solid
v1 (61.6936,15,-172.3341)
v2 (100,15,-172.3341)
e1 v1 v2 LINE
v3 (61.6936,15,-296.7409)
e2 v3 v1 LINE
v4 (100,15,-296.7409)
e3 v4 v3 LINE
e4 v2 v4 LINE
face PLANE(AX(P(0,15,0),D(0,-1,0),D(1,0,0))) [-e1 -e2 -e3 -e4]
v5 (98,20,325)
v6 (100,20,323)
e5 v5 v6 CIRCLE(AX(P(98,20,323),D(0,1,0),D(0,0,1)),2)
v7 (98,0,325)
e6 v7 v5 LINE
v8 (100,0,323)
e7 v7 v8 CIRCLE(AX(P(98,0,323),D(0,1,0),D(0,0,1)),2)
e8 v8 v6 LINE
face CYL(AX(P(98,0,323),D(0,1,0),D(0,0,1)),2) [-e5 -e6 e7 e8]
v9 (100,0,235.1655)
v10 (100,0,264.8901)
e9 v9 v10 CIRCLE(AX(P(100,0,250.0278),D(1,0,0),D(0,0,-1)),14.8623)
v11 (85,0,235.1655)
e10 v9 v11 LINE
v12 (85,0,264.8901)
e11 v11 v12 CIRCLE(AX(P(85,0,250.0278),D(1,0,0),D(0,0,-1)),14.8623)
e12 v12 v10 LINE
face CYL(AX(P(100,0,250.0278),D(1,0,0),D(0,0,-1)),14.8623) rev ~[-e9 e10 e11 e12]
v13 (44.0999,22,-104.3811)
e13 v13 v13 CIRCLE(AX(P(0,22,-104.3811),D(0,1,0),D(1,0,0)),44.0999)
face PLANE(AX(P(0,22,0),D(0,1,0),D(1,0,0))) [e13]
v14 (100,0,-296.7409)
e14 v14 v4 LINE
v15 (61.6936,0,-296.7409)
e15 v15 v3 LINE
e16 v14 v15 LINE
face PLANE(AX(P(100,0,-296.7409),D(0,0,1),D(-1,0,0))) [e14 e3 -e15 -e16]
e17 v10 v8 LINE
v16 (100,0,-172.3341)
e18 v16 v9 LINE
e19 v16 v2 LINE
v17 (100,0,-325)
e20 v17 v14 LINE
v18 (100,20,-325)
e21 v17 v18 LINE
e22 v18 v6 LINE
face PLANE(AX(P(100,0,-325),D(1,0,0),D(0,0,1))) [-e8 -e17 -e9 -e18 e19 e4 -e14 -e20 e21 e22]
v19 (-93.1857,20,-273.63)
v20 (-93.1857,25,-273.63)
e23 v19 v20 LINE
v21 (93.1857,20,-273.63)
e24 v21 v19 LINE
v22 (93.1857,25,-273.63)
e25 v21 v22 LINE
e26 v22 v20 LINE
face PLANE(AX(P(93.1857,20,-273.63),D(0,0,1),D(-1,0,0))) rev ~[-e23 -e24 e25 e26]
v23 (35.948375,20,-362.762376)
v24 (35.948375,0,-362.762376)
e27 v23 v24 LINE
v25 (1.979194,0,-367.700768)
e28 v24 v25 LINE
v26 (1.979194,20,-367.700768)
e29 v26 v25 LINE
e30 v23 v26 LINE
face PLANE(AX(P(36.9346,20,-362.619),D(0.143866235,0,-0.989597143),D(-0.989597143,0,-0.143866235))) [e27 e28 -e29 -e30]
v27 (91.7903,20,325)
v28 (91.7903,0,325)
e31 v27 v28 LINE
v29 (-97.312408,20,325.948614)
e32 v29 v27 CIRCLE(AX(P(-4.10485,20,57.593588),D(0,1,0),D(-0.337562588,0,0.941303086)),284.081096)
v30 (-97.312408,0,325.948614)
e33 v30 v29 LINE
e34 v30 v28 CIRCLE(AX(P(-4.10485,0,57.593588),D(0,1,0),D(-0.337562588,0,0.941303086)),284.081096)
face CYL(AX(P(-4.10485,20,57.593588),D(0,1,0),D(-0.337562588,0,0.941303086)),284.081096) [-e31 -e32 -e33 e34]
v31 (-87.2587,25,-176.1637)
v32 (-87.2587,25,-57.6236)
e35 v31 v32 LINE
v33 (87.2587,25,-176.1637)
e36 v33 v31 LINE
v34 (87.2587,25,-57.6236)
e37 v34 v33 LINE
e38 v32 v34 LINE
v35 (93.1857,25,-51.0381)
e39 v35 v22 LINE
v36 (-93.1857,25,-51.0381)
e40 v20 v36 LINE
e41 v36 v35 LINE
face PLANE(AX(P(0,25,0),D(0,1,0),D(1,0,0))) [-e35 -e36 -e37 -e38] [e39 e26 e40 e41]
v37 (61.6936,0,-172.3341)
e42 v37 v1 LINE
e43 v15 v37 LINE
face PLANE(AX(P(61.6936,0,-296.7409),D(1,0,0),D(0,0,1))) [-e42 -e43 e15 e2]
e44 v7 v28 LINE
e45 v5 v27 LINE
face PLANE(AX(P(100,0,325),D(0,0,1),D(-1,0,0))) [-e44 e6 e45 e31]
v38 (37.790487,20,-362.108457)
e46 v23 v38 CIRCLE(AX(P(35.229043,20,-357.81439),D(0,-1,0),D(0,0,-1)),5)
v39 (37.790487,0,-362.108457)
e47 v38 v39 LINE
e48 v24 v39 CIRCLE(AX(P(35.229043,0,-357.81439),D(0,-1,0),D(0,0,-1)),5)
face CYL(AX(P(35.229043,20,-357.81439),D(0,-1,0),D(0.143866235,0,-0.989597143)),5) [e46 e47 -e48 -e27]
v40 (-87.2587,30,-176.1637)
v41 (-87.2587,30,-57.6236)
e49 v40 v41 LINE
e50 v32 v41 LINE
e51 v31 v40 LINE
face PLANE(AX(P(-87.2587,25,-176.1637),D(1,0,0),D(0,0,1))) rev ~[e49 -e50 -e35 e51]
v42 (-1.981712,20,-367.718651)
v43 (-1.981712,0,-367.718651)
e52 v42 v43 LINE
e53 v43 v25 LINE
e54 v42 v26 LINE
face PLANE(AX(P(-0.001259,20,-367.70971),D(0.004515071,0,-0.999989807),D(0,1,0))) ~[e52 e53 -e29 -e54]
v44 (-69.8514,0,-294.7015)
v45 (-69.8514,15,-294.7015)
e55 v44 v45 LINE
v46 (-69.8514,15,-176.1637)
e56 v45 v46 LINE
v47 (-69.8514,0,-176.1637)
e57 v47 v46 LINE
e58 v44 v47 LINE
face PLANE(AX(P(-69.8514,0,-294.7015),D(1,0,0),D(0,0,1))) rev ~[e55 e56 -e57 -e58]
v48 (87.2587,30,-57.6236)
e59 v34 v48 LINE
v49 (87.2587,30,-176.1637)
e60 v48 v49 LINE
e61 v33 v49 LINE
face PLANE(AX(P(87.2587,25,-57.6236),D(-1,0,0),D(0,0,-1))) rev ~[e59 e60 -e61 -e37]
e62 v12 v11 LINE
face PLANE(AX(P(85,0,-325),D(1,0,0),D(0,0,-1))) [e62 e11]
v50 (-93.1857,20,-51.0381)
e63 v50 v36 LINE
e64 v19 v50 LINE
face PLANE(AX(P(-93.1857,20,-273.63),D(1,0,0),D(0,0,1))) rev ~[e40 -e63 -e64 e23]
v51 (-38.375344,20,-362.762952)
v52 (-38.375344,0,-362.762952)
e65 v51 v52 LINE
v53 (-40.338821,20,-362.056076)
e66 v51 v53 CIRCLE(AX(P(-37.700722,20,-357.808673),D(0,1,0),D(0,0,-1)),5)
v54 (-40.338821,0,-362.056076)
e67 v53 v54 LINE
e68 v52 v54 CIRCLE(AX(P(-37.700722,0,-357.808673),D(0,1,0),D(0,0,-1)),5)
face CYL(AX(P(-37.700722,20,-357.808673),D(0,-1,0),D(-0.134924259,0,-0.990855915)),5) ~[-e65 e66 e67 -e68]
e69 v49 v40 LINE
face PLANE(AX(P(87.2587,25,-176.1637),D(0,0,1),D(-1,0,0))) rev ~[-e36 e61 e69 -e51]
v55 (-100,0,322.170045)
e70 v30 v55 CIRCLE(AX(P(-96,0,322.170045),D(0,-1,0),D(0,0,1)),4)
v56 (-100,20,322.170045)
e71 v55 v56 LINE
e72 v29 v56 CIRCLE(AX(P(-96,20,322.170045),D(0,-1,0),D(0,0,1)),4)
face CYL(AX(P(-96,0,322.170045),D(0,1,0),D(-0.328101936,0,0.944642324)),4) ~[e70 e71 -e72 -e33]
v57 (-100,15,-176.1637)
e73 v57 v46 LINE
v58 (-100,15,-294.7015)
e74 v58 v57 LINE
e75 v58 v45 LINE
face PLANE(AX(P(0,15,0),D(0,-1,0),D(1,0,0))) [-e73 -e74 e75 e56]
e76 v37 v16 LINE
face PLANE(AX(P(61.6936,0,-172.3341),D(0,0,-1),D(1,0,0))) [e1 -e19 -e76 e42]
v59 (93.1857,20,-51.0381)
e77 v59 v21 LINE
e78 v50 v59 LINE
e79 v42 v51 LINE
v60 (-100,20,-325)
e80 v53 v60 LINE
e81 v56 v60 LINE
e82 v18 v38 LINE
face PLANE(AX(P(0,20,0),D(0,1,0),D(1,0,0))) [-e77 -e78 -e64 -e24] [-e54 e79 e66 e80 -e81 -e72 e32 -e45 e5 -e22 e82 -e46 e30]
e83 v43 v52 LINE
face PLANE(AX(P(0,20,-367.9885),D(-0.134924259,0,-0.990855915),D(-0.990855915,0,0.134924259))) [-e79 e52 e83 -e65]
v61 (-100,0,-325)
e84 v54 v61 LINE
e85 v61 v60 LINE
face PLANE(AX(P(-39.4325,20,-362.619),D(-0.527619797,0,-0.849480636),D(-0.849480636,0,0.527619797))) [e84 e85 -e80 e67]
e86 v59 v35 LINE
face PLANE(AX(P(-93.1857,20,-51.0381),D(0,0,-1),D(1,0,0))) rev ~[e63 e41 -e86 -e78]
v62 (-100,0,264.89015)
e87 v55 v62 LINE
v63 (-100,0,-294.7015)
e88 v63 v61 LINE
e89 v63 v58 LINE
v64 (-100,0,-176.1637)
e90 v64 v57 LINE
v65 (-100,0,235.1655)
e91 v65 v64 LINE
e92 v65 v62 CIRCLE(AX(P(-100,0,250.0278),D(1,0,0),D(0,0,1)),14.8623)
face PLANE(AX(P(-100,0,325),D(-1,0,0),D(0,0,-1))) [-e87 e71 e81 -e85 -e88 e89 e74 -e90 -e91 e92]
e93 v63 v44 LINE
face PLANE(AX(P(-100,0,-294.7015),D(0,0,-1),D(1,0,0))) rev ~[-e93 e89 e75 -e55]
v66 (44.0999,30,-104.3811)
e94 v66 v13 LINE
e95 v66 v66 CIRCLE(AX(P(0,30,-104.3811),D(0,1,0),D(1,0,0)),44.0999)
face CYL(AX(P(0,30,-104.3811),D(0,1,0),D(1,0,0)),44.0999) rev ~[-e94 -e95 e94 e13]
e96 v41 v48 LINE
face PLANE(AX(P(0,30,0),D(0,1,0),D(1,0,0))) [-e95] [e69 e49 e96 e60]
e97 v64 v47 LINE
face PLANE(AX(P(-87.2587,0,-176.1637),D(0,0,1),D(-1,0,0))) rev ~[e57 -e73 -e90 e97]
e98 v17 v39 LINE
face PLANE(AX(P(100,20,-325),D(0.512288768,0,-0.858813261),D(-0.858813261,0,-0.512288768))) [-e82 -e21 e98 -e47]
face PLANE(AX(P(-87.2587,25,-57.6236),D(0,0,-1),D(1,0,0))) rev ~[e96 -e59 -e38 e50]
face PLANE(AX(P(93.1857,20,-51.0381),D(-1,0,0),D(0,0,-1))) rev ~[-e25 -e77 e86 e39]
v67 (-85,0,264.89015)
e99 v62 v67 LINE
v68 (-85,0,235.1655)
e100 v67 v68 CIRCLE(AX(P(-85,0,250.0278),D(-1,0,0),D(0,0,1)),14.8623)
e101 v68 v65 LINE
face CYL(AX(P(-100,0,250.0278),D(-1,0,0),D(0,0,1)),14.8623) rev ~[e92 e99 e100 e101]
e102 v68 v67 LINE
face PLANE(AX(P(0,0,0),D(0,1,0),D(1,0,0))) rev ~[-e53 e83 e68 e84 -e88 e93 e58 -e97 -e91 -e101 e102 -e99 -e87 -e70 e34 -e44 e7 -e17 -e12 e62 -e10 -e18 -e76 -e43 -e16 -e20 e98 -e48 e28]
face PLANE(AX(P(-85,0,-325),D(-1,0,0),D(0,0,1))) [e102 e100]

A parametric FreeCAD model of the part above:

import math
import FreeCAD as App
import Part
import Sketcher
from FreeCAD import Vector


def edges_at(feature, points):
    """Names of the edges that pass closest to the given points."""
    edges = feature.Shape.Edges
    near = lambda p: min(range(len(edges)), key=lambda i: edges[i].distToShape(Part.Vertex(*p))[0])
    return sorted({f"Edge{near(p) + 1}" for p in points})


def add_polygon(sketch, points):
    """Adds a closed chain of lines whose ends are joined by coincident constraints."""
    first, n = sketch.GeometryCount, len(points)
    for a, b in zip(points, points[1:] + points[:1]):
        sketch.addGeometry(Part.LineSegment(App.Vector(*a, 0), App.Vector(*b, 0)), False)
    for i in range(n):
        sketch.addConstraint(Sketcher.Constraint("Coincident", first + i, 2, first + (i + 1) % n, 1))

doc = App.newDocument("Part")
body = doc.addObject("PartDesign::Body", "Body")

# Sketch on XZ plane
sketch1 = doc.addObject("Sketcher::SketchObject", "Sketch")
body.addObject(sketch1)
sketch1.AttachmentSupport = (doc.XZ_Plane, [""])
sketch1.MapMode = "FlatFace"
add_polygon(sketch1, [(-100, 325), (100, 325), (100, -325), (-100, -325)])  # lines 0-3
sketch1.addConstraint([
    Sketcher.Constraint("Horizontal", 0),
    Sketcher.Constraint("Vertical", 1),
    Sketcher.Constraint("Horizontal", 2),
    Sketcher.Constraint("Vertical", 3),
    Sketcher.Constraint("Symmetric", 0, 2, 2, 2, -1, 1),
    Sketcher.Constraint("DistanceX", 0, 1, 0, 2, 200.0),
    Sketcher.Constraint("DistanceY", 1, 2, 1, 1, 650.0),
])
pad1 = doc.addObject("PartDesign::Pad", "Pad")
body.addObject(pad1)
pad1.Profile = sketch1
pad1.Length = 20
pad1.Reversed = True

# Sketch on XZ plane
sketch2 = doc.addObject("Sketcher::SketchObject", "Sketch001")
body.addObject(sketch2)
sketch2.AttachmentSupport = (doc.XZ_Plane, [""])
sketch2.MapMode = "FlatFace"
sketch2.AttachmentOffset = App.Placement(Vector(0, 0, -20), App.Rotation())
sketch2.addGeometry([
    Part.LineSegment(Vector(91.7903, 325, 0), Vector(-100, 325, 0)),
    Part.ArcOfCircle(Part.Circle(Vector(-4.1048, 57.5933, 0), Vector(0, 0, 1), 284.081384), math.radians(70.271586), math.radians(109.728433)),
], False)
sketch2.addConstraint([
    Sketcher.Constraint("Coincident", 0, 1, 1, 1),
    Sketcher.Constraint("Coincident", 1, 2, 0, 2),
    Sketcher.Constraint("Horizontal", 0),
    Sketcher.Constraint("DistanceY", -1, 1, 0, 1, 325.0),
    Sketcher.Constraint("DistanceX", 1, 2, -1, 1, 100.0),
    Sketcher.Constraint("Radius", 1, 284.0814),
    Sketcher.Constraint("DistanceX", 0, 2, 0, 1, 191.7903),
])
pad2 = doc.addObject("PartDesign::Pad", "Pad001")
body.addObject(pad2)
pad2.Profile = sketch2
pad2.Length = 20

# Sketch on XZ plane
sketch3 = doc.addObject("Sketcher::SketchObject", "Sketch002")
body.addObject(sketch3)
sketch3.AttachmentSupport = (doc.XZ_Plane, [""])
sketch3.MapMode = "FlatFace"
sketch3.AttachmentOffset = App.Placement(Vector(0, 0, -20), App.Rotation())
add_polygon(sketch3, [(-100, -325), (100, -325), (36.9346, -362.619), (0, -367.9885), (-39.4325, -362.619)])  # lines 0-4
sketch3.addConstraint([
    Sketcher.Constraint("Horizontal", 0),
    Sketcher.Constraint("PointOnObject", 2, 2, -2),
    Sketcher.Constraint("Horizontal", 1, 2, 3, 2),
    Sketcher.Constraint("DistanceX", 0, 1, 0, 2, 200.0),
    Sketcher.Constraint("DistanceX", -1, 1, 0, 2, 100.0),
    Sketcher.Constraint("DistanceY", 0, 2, -1, 1, 325.0),
    Sketcher.Constraint("DistanceY", 1, 2, -1, 1, 362.619),
    Sketcher.Constraint("DistanceX", 3, 2, 1, 2, 76.367),
    Sketcher.Constraint("Distance", 1, 73.4332),
    Sketcher.Constraint("Distance", 2, 37.3229),
])
pad3 = doc.addObject("PartDesign::Pad", "Pad002")
body.addObject(pad3)
pad3.Profile = sketch3
pad3.Length = 20
doc.recompute()

fillet = doc.addObject("PartDesign::Fillet", "Fillet")
body.addObject(fillet)
fillet.Base = (pad3, edges_at(pad3, [(100, 10, 325)]))
fillet.Radius = 2
doc.recompute()

fillet2 = doc.addObject("PartDesign::Fillet", "Fillet001")
body.addObject(fillet2)
fillet2.Base = (fillet, edges_at(fillet, [(-100, 10, 325)]))
fillet2.Radius = 4
doc.recompute()

chamfer = doc.addObject("PartDesign::Chamfer", "Chamfer")
body.addObject(chamfer)
chamfer.Base = (fillet2, edges_at(fillet2, [(0, 10, -367.988)]))
chamfer.Size = 2
doc.recompute()

fillet3 = doc.addObject("PartDesign::Fillet", "Fillet002")
body.addObject(fillet3)
fillet3.Base = (chamfer, edges_at(chamfer, [(36.935, 10, -362.619)]))
fillet3.Radius = 5
doc.recompute()

fillet4 = doc.addObject("PartDesign::Fillet", "Fillet003")
body.addObject(fillet4)
fillet4.Base = (fillet3, edges_at(fillet3, [(-39.432, 10, -362.619)]))
fillet4.Radius = 5

# Sketch on XZ plane
sketch4 = doc.addObject("Sketcher::SketchObject", "Sketch003")
body.addObject(sketch4)
sketch4.AttachmentSupport = (doc.XZ_Plane, [""])
sketch4.MapMode = "FlatFace"
sketch4.AttachmentOffset = App.Placement(Vector(0, 0, -20), App.Rotation())
add_polygon(sketch4, [(93.1857, -51.0381), (93.1857, -273.63), (-93.1857, -273.63), (-93.1857, -51.0381)])  # lines 0-3
sketch4.addConstraint([
    Sketcher.Constraint("Vertical", 0),
    Sketcher.Constraint("Horizontal", 1),
    Sketcher.Constraint("Vertical", 2),
    Sketcher.Constraint("Horizontal", 3),
    Sketcher.Constraint("DistanceY", 0, 2, 0, 1, 222.592),
    Sketcher.Constraint("DistanceY", 0, 2, -1, 1, 273.63),
    Sketcher.Constraint("DistanceX", 1, 2, 1, 1, 186.3714),
    Sketcher.Constraint("DistanceX", -1, 1, 0, 2, 93.1857),
])
pad4 = doc.addObject("PartDesign::Pad", "Pad003")
body.addObject(pad4)
pad4.Profile = sketch4
pad4.Length = 5
pad4.Reversed = True

# Sketch on XZ plane
sketch5 = doc.addObject("Sketcher::SketchObject", "Sketch004")
body.addObject(sketch5)
sketch5.AttachmentSupport = (doc.XZ_Plane, [""])
sketch5.MapMode = "FlatFace"
sketch5.AttachmentOffset = App.Placement(Vector(0, 0, -25), App.Rotation())
add_polygon(sketch5, [(87.2587, -57.6236), (87.2587, -176.1637), (-87.2587, -176.1637), (-87.2587, -57.6236)])  # lines 0-3
sketch5.addConstraint([
    Sketcher.Constraint("Vertical", 0),
    Sketcher.Constraint("Horizontal", 1),
    Sketcher.Constraint("Vertical", 2),
    Sketcher.Constraint("Horizontal", 3),
    Sketcher.Constraint("DistanceY", 0, 2, 0, 1, 118.54),
    Sketcher.Constraint("DistanceX", 1, 2, 1, 1, 174.5174),
    Sketcher.Constraint("DistanceX", -1, 1, 0, 2, 87.2587),
    Sketcher.Constraint("DistanceY", 0, 2, -1, 1, 176.1637),
])
pad5 = doc.addObject("PartDesign::Pad", "Pad004")
body.addObject(pad5)
pad5.Profile = sketch5
pad5.Length = 5
pad5.Reversed = True

# Sketch on XZ plane
sketch6 = doc.addObject("Sketcher::SketchObject", "Sketch005")
body.addObject(sketch6)
sketch6.AttachmentSupport = (doc.XZ_Plane, [""])
sketch6.MapMode = "FlatFace"
sketch6.AttachmentOffset = App.Placement(Vector(0, 0, -30), App.Rotation())
sketch6.addGeometry(Part.Circle(Vector(0, -104.3811, 0), Vector(0, 0, 1), 44.0999), False)
sketch6.addConstraint([
    Sketcher.Constraint("PointOnObject", 0, 3, -2),
    Sketcher.Constraint("Diameter", 0, 88.1998),
    Sketcher.Constraint("DistanceY", 0, 3, -1, 1, 104.381),
])
pocket1 = doc.addObject("PartDesign::Pocket", "Pocket")
body.addObject(pocket1)
pocket1.Profile = sketch6
pocket1.Length = 8
pocket1.Reversed = True

# Sketch on XZ plane
sketch7 = doc.addObject("Sketcher::SketchObject", "Sketch006")
body.addObject(sketch7)
sketch7.AttachmentSupport = (doc.XZ_Plane, [""])
sketch7.MapMode = "FlatFace"
add_polygon(sketch7, [(100, -296.7409), (100, -172.3341), (61.6936, -172.3341), (61.6936, -296.7409)])  # lines 0-3
sketch7.addConstraint([
    Sketcher.Constraint("Vertical", 0),
    Sketcher.Constraint("Horizontal", 1),
    Sketcher.Constraint("Vertical", 2),
    Sketcher.Constraint("Horizontal", 3),
    Sketcher.Constraint("DistanceX", -1, 1, 0, 2, 100.0),
    Sketcher.Constraint("DistanceX", 1, 2, 1, 1, 38.3064),
    Sketcher.Constraint("DistanceY", 0, 1, 0, 2, 124.4068),
    Sketcher.Constraint("DistanceY", 0, 2, -1, 1, 172.334),
])
pocket2 = doc.addObject("PartDesign::Pocket", "Pocket001")
body.addObject(pocket2)
pocket2.Profile = sketch7
pocket2.Length = 15

# Sketch on XZ plane
sketch8 = doc.addObject("Sketcher::SketchObject", "Sketch007")
body.addObject(sketch8)
sketch8.AttachmentSupport = (doc.XZ_Plane, [""])
sketch8.MapMode = "FlatFace"
add_polygon(sketch8, [(-100, -176.1637), (-100, -294.7015), (-69.8514, -294.7015), (-69.8514, -176.1637)])  # lines 0-3
sketch8.addConstraint([
    Sketcher.Constraint("Vertical", 0),
    Sketcher.Constraint("Horizontal", 1),
    Sketcher.Constraint("Vertical", 2),
    Sketcher.Constraint("Horizontal", 3),
    Sketcher.Constraint("DistanceX", 0, 2, -1, 1, 100.0),
    Sketcher.Constraint("DistanceX", 1, 1, 1, 2, 30.1486),
    Sketcher.Constraint("DistanceY", 0, 2, 0, 1, 118.5378),
    Sketcher.Constraint("DistanceY", 0, 2, -1, 1, 294.7015),
])
pocket3 = doc.addObject("PartDesign::Pocket", "Pocket002")
body.addObject(pocket3)
pocket3.Profile = sketch8
pocket3.Length = 15

# Sketch on YZ plane
sketch9 = doc.addObject("Sketcher::SketchObject", "Sketch008")
body.addObject(sketch9)
sketch9.AttachmentSupport = (doc.YZ_Plane, [""])
sketch9.MapMode = "FlatFace"
sketch9.AttachmentOffset = App.Placement(Vector(0, 0, 100), App.Rotation())
sketch9.addGeometry(Part.Circle(Vector(0, 250.0278, 0), Vector(0, 0, 1), 14.8623), False)
sketch9.addConstraint([
    Sketcher.Constraint("PointOnObject", 0, 3, -2),
    Sketcher.Constraint("Diameter", 0, 29.7246),
    Sketcher.Constraint("DistanceY", -1, 1, 0, 3, 250.0278),
])
pocket4 = doc.addObject("PartDesign::Pocket", "Pocket003")
body.addObject(pocket4)
pocket4.Profile = sketch9
pocket4.Length = 15

# Sketch on YZ plane
sketch10 = doc.addObject("Sketcher::SketchObject", "Sketch009")
body.addObject(sketch10)
sketch10.AttachmentSupport = (doc.YZ_Plane, [""])
sketch10.MapMode = "FlatFace"
sketch10.AttachmentOffset = App.Placement(Vector(0, 0, -100), App.Rotation())
sketch10.addGeometry(Part.Circle(Vector(0, 250.0278, 0), Vector(0, 0, 1), 14.8623), False)
sketch10.addConstraint([
    Sketcher.Constraint("PointOnObject", 0, 3, -2),
    Sketcher.Constraint("Diameter", 0, 29.7246),
    Sketcher.Constraint("DistanceY", -1, 1, 0, 3, 250.0278),
])
pocket5 = doc.addObject("PartDesign::Pocket", "Pocket004")
body.addObject(pocket5)
pocket5.Profile = sketch10
pocket5.Length = 15
pocket5.Reversed = True

doc.recompute()
